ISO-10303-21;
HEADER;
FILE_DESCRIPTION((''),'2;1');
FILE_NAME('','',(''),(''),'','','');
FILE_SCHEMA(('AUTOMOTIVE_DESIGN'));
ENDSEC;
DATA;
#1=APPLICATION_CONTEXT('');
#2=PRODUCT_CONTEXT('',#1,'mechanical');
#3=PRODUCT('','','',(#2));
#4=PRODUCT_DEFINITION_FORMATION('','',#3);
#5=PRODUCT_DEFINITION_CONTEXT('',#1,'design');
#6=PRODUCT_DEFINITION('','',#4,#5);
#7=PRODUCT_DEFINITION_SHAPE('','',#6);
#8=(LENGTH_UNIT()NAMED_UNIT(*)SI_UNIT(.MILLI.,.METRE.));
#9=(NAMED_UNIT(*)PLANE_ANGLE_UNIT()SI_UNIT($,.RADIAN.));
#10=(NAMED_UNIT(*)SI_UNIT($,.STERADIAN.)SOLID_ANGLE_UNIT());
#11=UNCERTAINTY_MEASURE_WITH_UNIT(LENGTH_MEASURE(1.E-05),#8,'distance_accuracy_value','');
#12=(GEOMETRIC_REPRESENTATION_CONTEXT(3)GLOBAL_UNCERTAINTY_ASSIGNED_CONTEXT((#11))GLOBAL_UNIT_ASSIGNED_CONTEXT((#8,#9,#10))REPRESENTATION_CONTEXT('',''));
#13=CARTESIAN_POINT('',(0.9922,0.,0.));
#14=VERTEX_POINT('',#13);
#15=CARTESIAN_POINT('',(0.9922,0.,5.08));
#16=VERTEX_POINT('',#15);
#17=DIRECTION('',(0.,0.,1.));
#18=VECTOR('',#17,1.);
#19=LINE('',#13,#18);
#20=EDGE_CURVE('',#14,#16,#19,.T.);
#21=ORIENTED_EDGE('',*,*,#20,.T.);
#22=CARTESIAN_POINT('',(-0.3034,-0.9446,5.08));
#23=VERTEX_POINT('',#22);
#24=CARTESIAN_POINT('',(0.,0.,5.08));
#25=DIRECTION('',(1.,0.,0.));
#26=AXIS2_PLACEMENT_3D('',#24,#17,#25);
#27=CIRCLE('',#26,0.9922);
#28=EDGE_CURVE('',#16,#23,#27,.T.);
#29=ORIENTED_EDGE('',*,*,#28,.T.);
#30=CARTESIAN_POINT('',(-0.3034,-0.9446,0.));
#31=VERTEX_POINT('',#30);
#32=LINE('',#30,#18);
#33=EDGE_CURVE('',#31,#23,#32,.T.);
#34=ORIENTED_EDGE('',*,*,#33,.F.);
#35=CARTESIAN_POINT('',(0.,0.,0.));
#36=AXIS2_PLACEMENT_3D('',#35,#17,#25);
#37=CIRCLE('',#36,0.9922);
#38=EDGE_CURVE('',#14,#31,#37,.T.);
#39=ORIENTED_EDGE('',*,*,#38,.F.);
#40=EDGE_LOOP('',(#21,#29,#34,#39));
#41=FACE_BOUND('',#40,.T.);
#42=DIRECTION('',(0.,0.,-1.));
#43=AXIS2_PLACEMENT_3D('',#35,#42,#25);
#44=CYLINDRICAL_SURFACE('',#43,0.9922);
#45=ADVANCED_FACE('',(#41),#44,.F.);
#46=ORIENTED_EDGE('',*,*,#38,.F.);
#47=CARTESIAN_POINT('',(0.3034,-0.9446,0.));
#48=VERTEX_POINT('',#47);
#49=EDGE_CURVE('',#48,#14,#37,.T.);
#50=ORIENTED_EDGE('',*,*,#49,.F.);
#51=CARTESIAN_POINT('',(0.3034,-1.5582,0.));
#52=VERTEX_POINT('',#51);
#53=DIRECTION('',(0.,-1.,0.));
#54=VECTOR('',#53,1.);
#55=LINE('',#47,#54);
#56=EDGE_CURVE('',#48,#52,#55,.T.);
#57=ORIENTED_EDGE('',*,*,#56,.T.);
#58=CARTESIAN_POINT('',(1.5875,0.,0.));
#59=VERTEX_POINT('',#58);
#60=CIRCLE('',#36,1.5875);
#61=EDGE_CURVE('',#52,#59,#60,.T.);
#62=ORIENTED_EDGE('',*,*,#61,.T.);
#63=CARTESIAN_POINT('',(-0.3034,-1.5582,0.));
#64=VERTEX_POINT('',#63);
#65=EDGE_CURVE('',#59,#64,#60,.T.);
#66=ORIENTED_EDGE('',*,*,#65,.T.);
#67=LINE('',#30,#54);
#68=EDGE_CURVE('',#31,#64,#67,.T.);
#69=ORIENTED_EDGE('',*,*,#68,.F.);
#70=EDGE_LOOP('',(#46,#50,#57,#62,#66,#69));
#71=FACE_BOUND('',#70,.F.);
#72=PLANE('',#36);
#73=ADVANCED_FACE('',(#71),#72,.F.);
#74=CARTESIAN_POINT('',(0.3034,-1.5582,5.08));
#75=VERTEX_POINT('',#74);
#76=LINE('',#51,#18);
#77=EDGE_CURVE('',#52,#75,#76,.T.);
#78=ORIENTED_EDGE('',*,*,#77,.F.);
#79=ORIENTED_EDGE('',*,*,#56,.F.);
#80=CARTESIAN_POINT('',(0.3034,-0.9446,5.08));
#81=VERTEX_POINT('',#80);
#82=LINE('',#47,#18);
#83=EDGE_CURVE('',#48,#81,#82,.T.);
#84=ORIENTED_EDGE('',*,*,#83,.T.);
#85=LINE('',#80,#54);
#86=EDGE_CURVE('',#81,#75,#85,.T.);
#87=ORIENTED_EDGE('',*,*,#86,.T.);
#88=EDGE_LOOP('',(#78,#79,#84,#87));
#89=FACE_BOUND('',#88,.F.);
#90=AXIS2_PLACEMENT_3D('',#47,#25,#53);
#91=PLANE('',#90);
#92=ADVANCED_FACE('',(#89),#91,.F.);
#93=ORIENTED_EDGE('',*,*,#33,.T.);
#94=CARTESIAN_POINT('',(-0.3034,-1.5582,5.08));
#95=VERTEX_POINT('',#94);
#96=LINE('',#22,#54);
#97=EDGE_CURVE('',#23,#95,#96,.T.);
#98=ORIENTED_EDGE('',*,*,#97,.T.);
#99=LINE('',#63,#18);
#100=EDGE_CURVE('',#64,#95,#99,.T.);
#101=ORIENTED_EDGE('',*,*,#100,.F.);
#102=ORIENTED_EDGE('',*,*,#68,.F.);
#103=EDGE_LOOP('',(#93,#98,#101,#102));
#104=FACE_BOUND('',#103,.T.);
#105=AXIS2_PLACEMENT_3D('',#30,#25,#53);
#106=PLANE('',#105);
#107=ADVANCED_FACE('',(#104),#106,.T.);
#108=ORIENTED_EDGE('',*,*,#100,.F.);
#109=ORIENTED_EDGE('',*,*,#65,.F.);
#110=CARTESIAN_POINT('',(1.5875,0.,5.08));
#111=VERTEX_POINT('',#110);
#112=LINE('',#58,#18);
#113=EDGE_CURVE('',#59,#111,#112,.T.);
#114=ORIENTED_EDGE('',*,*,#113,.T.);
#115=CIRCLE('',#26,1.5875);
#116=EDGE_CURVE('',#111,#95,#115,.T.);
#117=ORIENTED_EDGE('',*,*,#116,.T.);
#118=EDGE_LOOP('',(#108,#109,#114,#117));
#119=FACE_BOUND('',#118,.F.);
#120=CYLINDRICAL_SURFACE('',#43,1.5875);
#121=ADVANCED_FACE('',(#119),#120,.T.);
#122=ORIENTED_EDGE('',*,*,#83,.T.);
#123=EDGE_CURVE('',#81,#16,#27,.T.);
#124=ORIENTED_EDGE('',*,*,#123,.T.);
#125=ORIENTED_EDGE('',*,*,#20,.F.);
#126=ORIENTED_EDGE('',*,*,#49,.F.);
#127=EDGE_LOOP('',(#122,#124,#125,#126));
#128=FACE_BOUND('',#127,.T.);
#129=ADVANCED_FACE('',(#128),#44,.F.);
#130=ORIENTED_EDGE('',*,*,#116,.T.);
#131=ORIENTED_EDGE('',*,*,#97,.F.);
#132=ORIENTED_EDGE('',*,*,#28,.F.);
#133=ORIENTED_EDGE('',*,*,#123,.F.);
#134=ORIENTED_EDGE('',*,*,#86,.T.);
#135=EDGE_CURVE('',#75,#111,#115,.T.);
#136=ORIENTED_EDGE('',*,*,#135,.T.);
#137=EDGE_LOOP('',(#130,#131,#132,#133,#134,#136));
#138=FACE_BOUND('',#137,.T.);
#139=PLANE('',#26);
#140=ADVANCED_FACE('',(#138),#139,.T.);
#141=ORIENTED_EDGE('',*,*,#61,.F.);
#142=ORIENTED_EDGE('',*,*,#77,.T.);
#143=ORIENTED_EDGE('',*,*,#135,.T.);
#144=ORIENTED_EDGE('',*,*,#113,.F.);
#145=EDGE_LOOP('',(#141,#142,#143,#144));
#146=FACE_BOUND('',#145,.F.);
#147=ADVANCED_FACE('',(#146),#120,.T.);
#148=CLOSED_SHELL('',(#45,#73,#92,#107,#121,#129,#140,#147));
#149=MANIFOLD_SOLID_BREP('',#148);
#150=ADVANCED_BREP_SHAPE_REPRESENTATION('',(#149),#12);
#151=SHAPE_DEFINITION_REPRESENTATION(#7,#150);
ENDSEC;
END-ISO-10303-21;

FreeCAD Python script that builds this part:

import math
import FreeCAD as App
import Part
import Sketcher

V = App.Vector
Q = App.Units.Quantity

doc = App.newDocument("Part")
body = doc.addObject("PartDesign::Body", "Body")

# Sketch on XY plane
sketch1 = body.newObject("Sketcher::SketchObject", "Sketch")
sketch1.AttachmentSupport = (doc.getObject("XY_Plane"), [""])
sketch1.MapMode = "FlatFace"
sketch1.addGeometry([
    Part.ArcOfCircle(Part.Circle(V(0, 0, 0), V(0, 0, 1), 1.5875), math.radians(-78.981697), math.radians(258.981697)),
    Part.LineSegment(V(-0.3034, -1.5582, 0), V(-0.3034, -0.9446, 0)),
    Part.ArcOfCircle(Part.Circle(V(0, 0, 0), V(0, 0, 1), 0.9922), math.radians(-72.193285), math.radians(252.193285)),
    Part.LineSegment(V(0.3034, -0.9446, 0), V(0.3034, -1.5582, 0)),
], False)
sketch1.addConstraint([
    Sketcher.Constraint("Coincident", 0, 2, 1, 1),
    Sketcher.Constraint("Coincident", 1, 2, 2, 2),
    Sketcher.Constraint("Coincident", 2, 1, 3, 1),
    Sketcher.Constraint("Coincident", 3, 2, 0, 1),
    Sketcher.Constraint("Vertical", 1),
    Sketcher.Constraint("Vertical", 3),
    Sketcher.Constraint("Coincident", 0, 3, -1, 1),
    Sketcher.Constraint("Coincident", 2, 3, -1, 1),
    Sketcher.Constraint("Horizontal", 1, 2, 2, 1),
    Sketcher.Constraint("Radius", 0, Q("0.0625 in")),
    Sketcher.Constraint("Radius", 2, 0.9922),
    Sketcher.Constraint("DistanceY", 1, 1, 1, 2, 0.6136),
])
pad1 = body.newObject("PartDesign::Pad", "Pad")
pad1.Profile = sketch1
pad1.Length = Q("0.2 in")

doc.recompute()
